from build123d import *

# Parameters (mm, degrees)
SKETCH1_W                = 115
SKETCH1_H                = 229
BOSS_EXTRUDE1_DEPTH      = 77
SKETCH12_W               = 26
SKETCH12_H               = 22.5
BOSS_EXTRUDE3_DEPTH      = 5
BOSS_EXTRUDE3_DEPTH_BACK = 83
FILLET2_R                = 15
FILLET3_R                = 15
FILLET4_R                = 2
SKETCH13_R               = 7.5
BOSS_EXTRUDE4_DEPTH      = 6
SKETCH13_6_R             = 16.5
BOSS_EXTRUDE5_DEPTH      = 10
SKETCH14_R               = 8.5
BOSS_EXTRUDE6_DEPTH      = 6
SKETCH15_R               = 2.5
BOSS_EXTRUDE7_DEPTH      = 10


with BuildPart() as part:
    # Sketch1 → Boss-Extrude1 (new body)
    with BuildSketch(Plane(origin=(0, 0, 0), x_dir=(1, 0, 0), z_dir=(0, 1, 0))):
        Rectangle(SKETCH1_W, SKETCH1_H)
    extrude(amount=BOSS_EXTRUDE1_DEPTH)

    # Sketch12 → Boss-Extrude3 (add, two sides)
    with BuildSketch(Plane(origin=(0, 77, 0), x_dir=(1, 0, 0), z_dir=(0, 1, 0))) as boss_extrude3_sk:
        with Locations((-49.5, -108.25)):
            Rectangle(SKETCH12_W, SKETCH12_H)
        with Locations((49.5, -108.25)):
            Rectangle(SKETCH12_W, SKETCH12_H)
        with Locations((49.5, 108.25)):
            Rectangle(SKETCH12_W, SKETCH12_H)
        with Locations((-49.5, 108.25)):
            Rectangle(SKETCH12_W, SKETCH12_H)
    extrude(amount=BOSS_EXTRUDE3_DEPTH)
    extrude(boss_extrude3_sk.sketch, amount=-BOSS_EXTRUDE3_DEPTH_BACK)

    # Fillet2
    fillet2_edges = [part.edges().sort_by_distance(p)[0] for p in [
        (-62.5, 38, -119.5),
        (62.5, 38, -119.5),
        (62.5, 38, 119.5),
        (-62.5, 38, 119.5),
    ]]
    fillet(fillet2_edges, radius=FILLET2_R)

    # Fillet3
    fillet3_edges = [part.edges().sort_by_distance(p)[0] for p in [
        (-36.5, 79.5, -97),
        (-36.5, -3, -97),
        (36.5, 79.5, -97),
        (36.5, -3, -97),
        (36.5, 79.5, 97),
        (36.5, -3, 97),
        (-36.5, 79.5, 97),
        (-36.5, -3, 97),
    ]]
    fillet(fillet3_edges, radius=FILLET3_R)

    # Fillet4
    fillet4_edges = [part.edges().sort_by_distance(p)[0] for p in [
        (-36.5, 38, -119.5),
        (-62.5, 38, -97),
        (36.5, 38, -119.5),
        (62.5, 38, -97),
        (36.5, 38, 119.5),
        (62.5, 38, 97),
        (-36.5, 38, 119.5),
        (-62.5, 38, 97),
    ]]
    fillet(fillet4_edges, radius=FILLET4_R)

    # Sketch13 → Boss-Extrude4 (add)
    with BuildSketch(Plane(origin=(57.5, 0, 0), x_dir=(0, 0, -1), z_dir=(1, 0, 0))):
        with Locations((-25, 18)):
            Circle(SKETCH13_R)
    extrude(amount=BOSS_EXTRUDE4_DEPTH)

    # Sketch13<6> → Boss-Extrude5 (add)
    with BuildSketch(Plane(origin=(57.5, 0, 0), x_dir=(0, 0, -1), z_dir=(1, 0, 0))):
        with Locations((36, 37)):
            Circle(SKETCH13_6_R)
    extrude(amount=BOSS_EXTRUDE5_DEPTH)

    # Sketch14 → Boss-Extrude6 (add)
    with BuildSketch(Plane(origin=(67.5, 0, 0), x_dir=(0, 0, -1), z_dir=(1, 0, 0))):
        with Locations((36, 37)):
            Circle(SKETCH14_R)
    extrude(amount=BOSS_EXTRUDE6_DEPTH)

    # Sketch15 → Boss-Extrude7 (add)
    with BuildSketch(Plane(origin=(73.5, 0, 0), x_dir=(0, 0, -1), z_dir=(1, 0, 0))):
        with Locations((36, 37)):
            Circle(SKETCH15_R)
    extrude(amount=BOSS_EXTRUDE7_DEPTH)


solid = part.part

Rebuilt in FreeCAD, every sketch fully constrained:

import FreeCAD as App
import Part
import Sketcher

V = App.Vector


def edges_at(feature, points):
    """Names of the edges that pass closest to the given points."""
    edges = feature.Shape.Edges
    near = lambda p: min(range(len(edges)), key=lambda i: edges[i].distToShape(Part.Vertex(*p))[0])
    return sorted({f"Edge{near(p) + 1}" for p in points})

doc = App.newDocument("Part")
body = doc.addObject("PartDesign::Body", "Body")

# Sketch on XZ plane
sketch1 = body.newObject("Sketcher::SketchObject", "Sketch")
sketch1.AttachmentSupport = (doc.getObject("XZ_Plane"), [""])
sketch1.MapMode = "FlatFace"
sketch1.addGeometry(Part.LineSegment(V(-58, -114, 0), V(-58, 114, 0)), False)
sketch1.addGeometry(Part.LineSegment(V(-58, 114, 0), V(58, 114, 0)), False)
sketch1.addGeometry(Part.LineSegment(V(58, 114, 0), V(58, -114, 0)), False)
sketch1.addGeometry(Part.LineSegment(V(58, -114, 0), V(-58, -114, 0)), False)
sketch1.addConstraint(Sketcher.Constraint("Coincident", 0, 2, 1, 1))
sketch1.addConstraint(Sketcher.Constraint("Coincident", 1, 2, 2, 1))
sketch1.addConstraint(Sketcher.Constraint("Coincident", 2, 2, 3, 1))
sketch1.addConstraint(Sketcher.Constraint("Coincident", 3, 2, 0, 1))
sketch1.addConstraint(Sketcher.Constraint("Vertical", 0))
sketch1.addConstraint(Sketcher.Constraint("Horizontal", 1))
sketch1.addConstraint(Sketcher.Constraint("Vertical", 2))
sketch1.addConstraint(Sketcher.Constraint("Horizontal", 3))
sketch1.addConstraint(Sketcher.Constraint("Symmetric", 0, 2, 2, 2, -1, 1))
sketch1.addConstraint(Sketcher.Constraint("DistanceX", 1, 1, 1, 2, 115.0))
sketch1.addConstraint(Sketcher.Constraint("DistanceY", 0, 1, 0, 2, 229.0))
pad1 = body.newObject("PartDesign::Pad", "Pad")
pad1.Profile = sketch1
pad1.Length = 77
pad1.Reversed = True

# Sketch on XZ plane
sketch2 = body.newObject("Sketcher::SketchObject", "Sketch001")
sketch2.AttachmentSupport = (doc.getObject("XZ_Plane"), [""])
sketch2.MapMode = "FlatFace"
sketch2.AttachmentOffset = App.Placement(V(0, 0, -77), App.Rotation())
sketch2.addGeometry(Part.LineSegment(V(-62, 97, 0), V(-62, 120, 0)), False)
sketch2.addGeometry(Part.LineSegment(V(-62, 120, 0), V(-36, 120, 0)), False)
sketch2.addGeometry(Part.LineSegment(V(-36, 120, 0), V(-36, 97, 0)), False)
sketch2.addGeometry(Part.LineSegment(V(-36, 97, 0), V(-62, 97, 0)), False)
sketch2.addGeometry(Part.LineSegment(V(36, 97, 0), V(36, 120, 0)), False)
sketch2.addGeometry(Part.LineSegment(V(36, 120, 0), V(62, 120, 0)), False)
sketch2.addGeometry(Part.LineSegment(V(62, 120, 0), V(62, 97, 0)), False)
sketch2.addGeometry(Part.LineSegment(V(62, 97, 0), V(36, 97, 0)), False)
sketch2.addGeometry(Part.LineSegment(V(36, -120, 0), V(36, -97, 0)), False)
sketch2.addGeometry(Part.LineSegment(V(36, -97, 0), V(62, -97, 0)), False)
sketch2.addGeometry(Part.LineSegment(V(62, -97, 0), V(62, -120, 0)), False)
sketch2.addGeometry(Part.LineSegment(V(62, -120, 0), V(36, -120, 0)), False)
sketch2.addGeometry(Part.LineSegment(V(-62, -120, 0), V(-62, -97, 0)), False)
sketch2.addGeometry(Part.LineSegment(V(-62, -97, 0), V(-36, -97, 0)), False)
sketch2.addGeometry(Part.LineSegment(V(-36, -97, 0), V(-36, -120, 0)), False)
sketch2.addGeometry(Part.LineSegment(V(-36, -120, 0), V(-62, -120, 0)), False)
sketch2.addConstraint(Sketcher.Constraint("Coincident", 0, 2, 1, 1))
sketch2.addConstraint(Sketcher.Constraint("Coincident", 1, 2, 2, 1))
sketch2.addConstraint(Sketcher.Constraint("Coincident", 2, 2, 3, 1))
sketch2.addConstraint(Sketcher.Constraint("Coincident", 3, 2, 0, 1))
sketch2.addConstraint(Sketcher.Constraint("Coincident", 4, 2, 5, 1))
sketch2.addConstraint(Sketcher.Constraint("Coincident", 5, 2, 6, 1))
sketch2.addConstraint(Sketcher.Constraint("Coincident", 6, 2, 7, 1))
sketch2.addConstraint(Sketcher.Constraint("Coincident", 7, 2, 4, 1))
sketch2.addConstraint(Sketcher.Constraint("Coincident", 8, 2, 9, 1))
sketch2.addConstraint(Sketcher.Constraint("Coincident", 9, 2, 10, 1))
sketch2.addConstraint(Sketcher.Constraint("Coincident", 10, 2, 11, 1))
sketch2.addConstraint(Sketcher.Constraint("Coincident", 11, 2, 8, 1))
sketch2.addConstraint(Sketcher.Constraint("Coincident", 12, 2, 13, 1))
sketch2.addConstraint(Sketcher.Constraint("Coincident", 13, 2, 14, 1))
sketch2.addConstraint(Sketcher.Constraint("Coincident", 14, 2, 15, 1))
sketch2.addConstraint(Sketcher.Constraint("Coincident", 15, 2, 12, 1))
sketch2.addConstraint(Sketcher.Constraint("Vertical", 0))
sketch2.addConstraint(Sketcher.Constraint("Horizontal", 1))
sketch2.addConstraint(Sketcher.Constraint("Vertical", 2))
sketch2.addConstraint(Sketcher.Constraint("Horizontal", 3))
sketch2.addConstraint(Sketcher.Constraint("Vertical", 4))
sketch2.addConstraint(Sketcher.Constraint("Horizontal", 5))
sketch2.addConstraint(Sketcher.Constraint("Vertical", 6))
sketch2.addConstraint(Sketcher.Constraint("Horizontal", 7))
sketch2.addConstraint(Sketcher.Constraint("Vertical", 8))
sketch2.addConstraint(Sketcher.Constraint("Horizontal", 9))
sketch2.addConstraint(Sketcher.Constraint("Vertical", 10))
sketch2.addConstraint(Sketcher.Constraint("Horizontal", 11))
sketch2.addConstraint(Sketcher.Constraint("Vertical", 12))
sketch2.addConstraint(Sketcher.Constraint("Horizontal", 13))
sketch2.addConstraint(Sketcher.Constraint("Vertical", 14))
sketch2.addConstraint(Sketcher.Constraint("Horizontal", 15))
sketch2.addConstraint(Sketcher.Constraint("Symmetric", 2, 2, 8, 2, -1, 1))
sketch2.addConstraint(Sketcher.Constraint("Symmetric", 0, 2, 10, 2, -1, 1))
sketch2.addConstraint(Sketcher.Constraint("Symmetric", 6, 2, 12, 2, -1, 1))
sketch2.addConstraint(Sketcher.Constraint("Symmetric", 4, 2, 14, 2, -1, 1))
sketch2.addConstraint(Sketcher.Constraint("Symmetric", 1, 2, 4, 2, -2))
sketch2.addConstraint(Sketcher.Constraint("Symmetric", 3, 2, 6, 2, -2))
sketch2.addConstraint(Sketcher.Constraint("DistanceX", 1, 1, 1, 2, 26.0))
sketch2.addConstraint(Sketcher.Constraint("DistanceY", 0, 1, 0, 2, 22.5))
sketch2.addConstraint(Sketcher.Constraint("DistanceY", -1, 1, 2, 2, 97.0))
sketch2.addConstraint(Sketcher.Constraint("DistanceX", 1, 2, 4, 2, 73.0))
pad2 = body.newObject("PartDesign::Pad", "Pad001")
pad2.Profile = sketch2
pad2.Type = "TwoLengths"
pad2.Length = 5
pad2.Length2 = 83
pad2.Reversed = True
doc.recompute()

fillet = body.newObject("PartDesign::Fillet", "Fillet")
fillet.Base = (pad2, edges_at(pad2, [
    (-62.5, 38, -119.5),
    (62.5, 38, -119.5),
    (62.5, 38, 119.5),
    (-62.5, 38, 119.5),
]))
fillet.Radius = 15
doc.recompute()

fillet2 = body.newObject("PartDesign::Fillet", "Fillet001")
fillet2.Base = (fillet, edges_at(fillet, [
    (-36.5, 79.5, -97),
    (-36.5, -3, -97),
    (36.5, 79.5, -97),
    (36.5, -3, -97),
    (36.5, 79.5, 97),
    (36.5, -3, 97),
    (-36.5, 79.5, 97),
    (-36.5, -3, 97),
]))
fillet2.Radius = 15
doc.recompute()

fillet3 = body.newObject("PartDesign::Fillet", "Fillet002")
fillet3.Base = (fillet2, edges_at(fillet2, [
    (-36.5, 38, -119.5),
    (-62.5, 38, -97),
    (36.5, 38, -119.5),
    (62.5, 38, -97),
    (36.5, 38, 119.5),
    (62.5, 38, 97),
    (-36.5, 38, 119.5),
    (-62.5, 38, 97),
]))
fillet3.Radius = 2

# Sketch on YZ plane
sketch3 = body.newObject("Sketcher::SketchObject", "Sketch002")
sketch3.AttachmentSupport = (doc.getObject("YZ_Plane"), [""])
sketch3.MapMode = "FlatFace"
sketch3.AttachmentOffset = App.Placement(V(0, 0, 57.5), App.Rotation())
sketch3.addGeometry(Part.Circle(V(18, 25, 0), V(0, 0, 1), 8), False)
sketch3.addConstraint(Sketcher.Constraint("Diameter", 0, 15.0))
sketch3.addConstraint(Sketcher.Constraint("DistanceX", -1, 1, 0, 3, 18.0))
sketch3.addConstraint(Sketcher.Constraint("DistanceY", -1, 1, 0, 3, 25.0))
pad3 = body.newObject("PartDesign::Pad", "Pad002")
pad3.Profile = sketch3
pad3.Length = 6

# Sketch on YZ plane
sketch4 = body.newObject("Sketcher::SketchObject", "Sketch003")
sketch4.AttachmentSupport = (doc.getObject("YZ_Plane"), [""])
sketch4.MapMode = "FlatFace"
sketch4.AttachmentOffset = App.Placement(V(0, 0, 57.5), App.Rotation())
sketch4.addGeometry(Part.Circle(V(37, -36, 0), V(0, 0, 1), 16), False)
sketch4.addConstraint(Sketcher.Constraint("Diameter", 0, 33.0))
sketch4.addConstraint(Sketcher.Constraint("DistanceX", -1, 1, 0, 3, 37.0))
sketch4.addConstraint(Sketcher.Constraint("DistanceY", 0, 3, -1, 1, 36.0))
pad4 = body.newObject("PartDesign::Pad", "Pad003")
pad4.Profile = sketch4
pad4.Length = 10

# Sketch on YZ plane
sketch5 = body.newObject("Sketcher::SketchObject", "Sketch004")
sketch5.AttachmentSupport = (doc.getObject("YZ_Plane"), [""])
sketch5.MapMode = "FlatFace"
sketch5.AttachmentOffset = App.Placement(V(0, 0, 67.5), App.Rotation())
sketch5.addGeometry(Part.Circle(V(37, -36, 0), V(0, 0, 1), 8), False)
sketch5.addConstraint(Sketcher.Constraint("Diameter", 0, 17.0))
sketch5.addConstraint(Sketcher.Constraint("DistanceX", -1, 1, 0, 3, 37.0))
sketch5.addConstraint(Sketcher.Constraint("DistanceY", 0, 3, -1, 1, 36.0))
pad5 = body.newObject("PartDesign::Pad", "Pad004")
pad5.Profile = sketch5
pad5.Length = 6

# Sketch on YZ plane
sketch6 = body.newObject("Sketcher::SketchObject", "Sketch005")
sketch6.AttachmentSupport = (doc.getObject("YZ_Plane"), [""])
sketch6.MapMode = "FlatFace"
sketch6.AttachmentOffset = App.Placement(V(0, 0, 73.5), App.Rotation())
sketch6.addGeometry(Part.Circle(V(37, -36, 0), V(0, 0, 1), 2.5), False)
sketch6.addConstraint(Sketcher.Constraint("Diameter", 0, 5.0))
sketch6.addConstraint(Sketcher.Constraint("DistanceX", -1, 1, 0, 3, 37.0))
sketch6.addConstraint(Sketcher.Constraint("DistanceY", 0, 3, -1, 1, 36.0))
pad6 = body.newObject("PartDesign::Pad", "Pad005")
pad6.Profile = sketch6
pad6.Length = 10

doc.recompute()
